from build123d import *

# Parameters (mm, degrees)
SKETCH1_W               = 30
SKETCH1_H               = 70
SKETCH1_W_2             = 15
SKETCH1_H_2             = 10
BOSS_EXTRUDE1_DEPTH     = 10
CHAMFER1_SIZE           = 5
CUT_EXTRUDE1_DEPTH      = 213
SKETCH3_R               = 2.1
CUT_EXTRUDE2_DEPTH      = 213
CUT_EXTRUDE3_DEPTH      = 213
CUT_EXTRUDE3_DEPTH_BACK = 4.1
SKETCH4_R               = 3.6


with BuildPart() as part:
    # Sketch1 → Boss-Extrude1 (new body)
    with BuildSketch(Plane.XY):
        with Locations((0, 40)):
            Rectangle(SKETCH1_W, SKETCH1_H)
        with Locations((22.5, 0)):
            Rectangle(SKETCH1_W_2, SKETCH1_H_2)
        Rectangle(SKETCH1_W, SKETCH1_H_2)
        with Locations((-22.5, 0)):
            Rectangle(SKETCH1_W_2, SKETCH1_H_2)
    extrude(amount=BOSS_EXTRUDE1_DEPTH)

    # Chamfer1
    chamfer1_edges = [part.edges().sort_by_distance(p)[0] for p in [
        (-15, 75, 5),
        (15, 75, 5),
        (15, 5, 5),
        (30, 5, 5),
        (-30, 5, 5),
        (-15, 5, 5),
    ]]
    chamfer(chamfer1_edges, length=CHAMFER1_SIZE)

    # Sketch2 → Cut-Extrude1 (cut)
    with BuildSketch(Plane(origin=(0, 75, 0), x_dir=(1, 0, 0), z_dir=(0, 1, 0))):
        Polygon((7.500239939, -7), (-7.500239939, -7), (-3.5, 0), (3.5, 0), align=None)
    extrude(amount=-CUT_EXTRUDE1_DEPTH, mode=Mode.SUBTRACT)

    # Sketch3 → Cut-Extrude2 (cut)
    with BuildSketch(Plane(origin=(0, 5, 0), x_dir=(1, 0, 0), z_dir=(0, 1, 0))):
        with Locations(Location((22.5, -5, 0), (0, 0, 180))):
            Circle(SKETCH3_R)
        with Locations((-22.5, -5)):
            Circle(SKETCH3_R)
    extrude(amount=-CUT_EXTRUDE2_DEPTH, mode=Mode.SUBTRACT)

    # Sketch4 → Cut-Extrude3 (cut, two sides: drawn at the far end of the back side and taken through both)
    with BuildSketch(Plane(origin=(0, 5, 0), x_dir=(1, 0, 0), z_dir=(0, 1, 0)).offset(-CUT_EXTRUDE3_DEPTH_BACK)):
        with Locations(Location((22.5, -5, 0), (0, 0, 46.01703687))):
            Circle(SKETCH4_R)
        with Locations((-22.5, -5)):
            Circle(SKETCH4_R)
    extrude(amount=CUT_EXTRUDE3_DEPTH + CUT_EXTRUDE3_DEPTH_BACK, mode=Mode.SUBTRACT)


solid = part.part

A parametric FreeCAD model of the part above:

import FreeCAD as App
import Part
import Sketcher
from FreeCAD import Vector
Q = App.Units.Quantity


def edges_at(feature, points):
    """Names of the edges that pass closest to the given points."""
    edges = feature.Shape.Edges
    near = lambda p: min(range(len(edges)), key=lambda i: edges[i].distToShape(Part.Vertex(*p))[0])
    return sorted({f"Edge{near(p) + 1}" for p in points})

doc = App.newDocument("Part")
body = doc.addObject("PartDesign::Body", "Body")

sketch1 = body.newObject("Sketcher::SketchObject", "Sketch")
sketch1.AttachmentSupport = (doc.getObject("XY_Plane"), [""])
sketch1.MapMode = "FlatFace"
sketch1.addGeometry([
    Part.LineSegment(Vector(-15, 75, 0), Vector(-15, 5, 0)),
    Part.LineSegment(Vector(-15, 5, 0), Vector(-30, 5, 0)),
    Part.LineSegment(Vector(-30, 5, 0), Vector(-30, -5, 0)),
    Part.LineSegment(Vector(-30, -5, 0), Vector(30, -5, 0)),
    Part.LineSegment(Vector(30, -5, 0), Vector(30, 5, 0)),
    Part.LineSegment(Vector(30, 5, 0), Vector(15, 5, 0)),
    Part.LineSegment(Vector(15, 5, 0), Vector(15, 75, 0)),
    Part.LineSegment(Vector(15, 75, 0), Vector(-15, 75, 0)),
], False)
sketch1.addConstraint([
    Sketcher.Constraint("Coincident", 0, 2, 1, 1),
    Sketcher.Constraint("Coincident", 1, 2, 2, 1),
    Sketcher.Constraint("Coincident", 2, 2, 3, 1),
    Sketcher.Constraint("Coincident", 3, 2, 4, 1),
    Sketcher.Constraint("Coincident", 4, 2, 5, 1),
    Sketcher.Constraint("Coincident", 5, 2, 6, 1),
    Sketcher.Constraint("Coincident", 6, 2, 7, 1),
    Sketcher.Constraint("Coincident", 7, 2, 0, 1),
    Sketcher.Constraint("Vertical", 0),
    Sketcher.Constraint("Horizontal", 1),
    Sketcher.Constraint("Vertical", 2),
    Sketcher.Constraint("Horizontal", 3),
    Sketcher.Constraint("Vertical", 4),
    Sketcher.Constraint("Horizontal", 5),
    Sketcher.Constraint("Vertical", 6),
    Sketcher.Constraint("Horizontal", 7),
    Sketcher.Constraint("Symmetric", 1, 2, 3, 2, -1, 1),
    Sketcher.Constraint("Symmetric", 0, 2, 5, 2, -2),
    Sketcher.Constraint("DistanceX", 1, 2, 1, 1, Q("15 mm")),
    Sketcher.Constraint("DistanceX", 3, 1, 3, 2, Q("60 mm")),
    Sketcher.Constraint("DistanceY", 0, 2, 0, 1, Q("70 mm")),
    Sketcher.Constraint("DistanceY", 2, 2, 2, 1, Q("10 mm")),
])
pad1 = body.newObject("PartDesign::Pad", "Pad")
pad1.Profile = sketch1
pad1.Length = 10
doc.recompute()

chamfer = body.newObject("PartDesign::Chamfer", "Chamfer")
chamfer.Base = (pad1, edges_at(pad1, [
    (-15, 75, 5),
    (15, 75, 5),
    (15, 5, 5),
    (30, 5, 5),
    (-30, 5, 5),
    (-15, 5, 5),
]))
chamfer.Size = 5

sketch2 = body.newObject("Sketcher::SketchObject", "Sketch001")
sketch2.AttachmentSupport = (doc.getObject("XZ_Plane"), [""])
sketch2.MapMode = "FlatFace"
sketch2.AttachmentOffset = App.Placement(Vector(0, 0, -75), App.Rotation())
sketch2.addGeometry([
    Part.LineSegment(Vector(-8, 7, 0), Vector(8, 7, 0)),
    Part.LineSegment(Vector(8, 7, 0), Vector(4, 0, 0)),
    Part.LineSegment(Vector(4, 0, 0), Vector(-4, 0, 0)),
    Part.LineSegment(Vector(-4, 0, 0), Vector(-8, 7, 0)),
], False)
sketch2.addConstraint([
    Sketcher.Constraint("Coincident", 0, 2, 1, 1),
    Sketcher.Constraint("Coincident", 1, 2, 2, 1),
    Sketcher.Constraint("Coincident", 2, 2, 3, 1),
    Sketcher.Constraint("Coincident", 3, 2, 0, 1),
    Sketcher.Constraint("Horizontal", 0),
    Sketcher.Constraint("Horizontal", 2),
    Sketcher.Constraint("Symmetric", 1, 2, 2, 2, -1, 1),
    Sketcher.Constraint("Equal", 1, 3),
    Sketcher.Constraint("DistanceX", 2, 2, 2, 1, Q("7 mm")),
    Sketcher.Constraint("DistanceY", -1, 1, 0, 2, Q("7 mm")),
    Sketcher.Constraint("DistanceX", 0, 1, 0, 2, Q("15.00048 mm")),
])
pocket1 = body.newObject("PartDesign::Pocket", "Pocket")
pocket1.Profile = sketch2
pocket1.Length = 213
pocket1.Reversed = True

sketch3 = body.newObject("Sketcher::SketchObject", "Sketch002")
sketch3.AttachmentSupport = (doc.getObject("XZ_Plane"), [""])
sketch3.MapMode = "FlatFace"
sketch3.AttachmentOffset = App.Placement(Vector(0, 0, -5), App.Rotation())
sketch3.addGeometry([
    Part.Circle(Vector(22.5, 5, 0), Vector(0, 0, 1), 2.1),
    Part.Circle(Vector(-22.5, 5, 0), Vector(0, 0, 1), 2.1),
], False)
sketch3.addConstraint([
    Sketcher.Constraint("Equal", 0, 1),
    Sketcher.Constraint("Symmetric", 0, 3, 1, 3, -2),
    Sketcher.Constraint("Diameter", 0, Q("4.2 mm")),
    Sketcher.Constraint("DistanceY", -1, 1, 0, 3, Q("5 mm")),
    Sketcher.Constraint("DistanceX", 1, 3, 0, 3, Q("45 mm")),
])
pocket2 = body.newObject("PartDesign::Pocket", "Pocket001")
pocket2.Profile = sketch3
pocket2.Length = 213
pocket2.Reversed = True

sketch4 = body.newObject("Sketcher::SketchObject", "Sketch003")
sketch4.AttachmentSupport = (doc.getObject("XZ_Plane"), [""])
sketch4.MapMode = "FlatFace"
sketch4.AttachmentOffset = App.Placement(Vector(0, 0, -5), App.Rotation())
sketch4.addGeometry([
    Part.Circle(Vector(22.5, 5, 0), Vector(0, 0, 1), 3.6),
    Part.Circle(Vector(-22.5, 5, 0), Vector(0, 0, 1), 3.6),
], False)
sketch4.addConstraint([
    Sketcher.Constraint("Equal", 0, 1),
    Sketcher.Constraint("Symmetric", 0, 3, 1, 3, -2),
    Sketcher.Constraint("Diameter", 0, Q("7.2 mm")),
    Sketcher.Constraint("DistanceY", -1, 1, 0, 3, Q("5 mm")),
    Sketcher.Constraint("DistanceX", 1, 3, 0, 3, Q("45 mm")),
])
pocket3 = body.newObject("PartDesign::Pocket", "Pocket002")
pocket3.Profile = sketch4
pocket3.Type = "TwoLengths"
pocket3.Length = 213
pocket3.Length2 = 4.1

doc.recompute()
